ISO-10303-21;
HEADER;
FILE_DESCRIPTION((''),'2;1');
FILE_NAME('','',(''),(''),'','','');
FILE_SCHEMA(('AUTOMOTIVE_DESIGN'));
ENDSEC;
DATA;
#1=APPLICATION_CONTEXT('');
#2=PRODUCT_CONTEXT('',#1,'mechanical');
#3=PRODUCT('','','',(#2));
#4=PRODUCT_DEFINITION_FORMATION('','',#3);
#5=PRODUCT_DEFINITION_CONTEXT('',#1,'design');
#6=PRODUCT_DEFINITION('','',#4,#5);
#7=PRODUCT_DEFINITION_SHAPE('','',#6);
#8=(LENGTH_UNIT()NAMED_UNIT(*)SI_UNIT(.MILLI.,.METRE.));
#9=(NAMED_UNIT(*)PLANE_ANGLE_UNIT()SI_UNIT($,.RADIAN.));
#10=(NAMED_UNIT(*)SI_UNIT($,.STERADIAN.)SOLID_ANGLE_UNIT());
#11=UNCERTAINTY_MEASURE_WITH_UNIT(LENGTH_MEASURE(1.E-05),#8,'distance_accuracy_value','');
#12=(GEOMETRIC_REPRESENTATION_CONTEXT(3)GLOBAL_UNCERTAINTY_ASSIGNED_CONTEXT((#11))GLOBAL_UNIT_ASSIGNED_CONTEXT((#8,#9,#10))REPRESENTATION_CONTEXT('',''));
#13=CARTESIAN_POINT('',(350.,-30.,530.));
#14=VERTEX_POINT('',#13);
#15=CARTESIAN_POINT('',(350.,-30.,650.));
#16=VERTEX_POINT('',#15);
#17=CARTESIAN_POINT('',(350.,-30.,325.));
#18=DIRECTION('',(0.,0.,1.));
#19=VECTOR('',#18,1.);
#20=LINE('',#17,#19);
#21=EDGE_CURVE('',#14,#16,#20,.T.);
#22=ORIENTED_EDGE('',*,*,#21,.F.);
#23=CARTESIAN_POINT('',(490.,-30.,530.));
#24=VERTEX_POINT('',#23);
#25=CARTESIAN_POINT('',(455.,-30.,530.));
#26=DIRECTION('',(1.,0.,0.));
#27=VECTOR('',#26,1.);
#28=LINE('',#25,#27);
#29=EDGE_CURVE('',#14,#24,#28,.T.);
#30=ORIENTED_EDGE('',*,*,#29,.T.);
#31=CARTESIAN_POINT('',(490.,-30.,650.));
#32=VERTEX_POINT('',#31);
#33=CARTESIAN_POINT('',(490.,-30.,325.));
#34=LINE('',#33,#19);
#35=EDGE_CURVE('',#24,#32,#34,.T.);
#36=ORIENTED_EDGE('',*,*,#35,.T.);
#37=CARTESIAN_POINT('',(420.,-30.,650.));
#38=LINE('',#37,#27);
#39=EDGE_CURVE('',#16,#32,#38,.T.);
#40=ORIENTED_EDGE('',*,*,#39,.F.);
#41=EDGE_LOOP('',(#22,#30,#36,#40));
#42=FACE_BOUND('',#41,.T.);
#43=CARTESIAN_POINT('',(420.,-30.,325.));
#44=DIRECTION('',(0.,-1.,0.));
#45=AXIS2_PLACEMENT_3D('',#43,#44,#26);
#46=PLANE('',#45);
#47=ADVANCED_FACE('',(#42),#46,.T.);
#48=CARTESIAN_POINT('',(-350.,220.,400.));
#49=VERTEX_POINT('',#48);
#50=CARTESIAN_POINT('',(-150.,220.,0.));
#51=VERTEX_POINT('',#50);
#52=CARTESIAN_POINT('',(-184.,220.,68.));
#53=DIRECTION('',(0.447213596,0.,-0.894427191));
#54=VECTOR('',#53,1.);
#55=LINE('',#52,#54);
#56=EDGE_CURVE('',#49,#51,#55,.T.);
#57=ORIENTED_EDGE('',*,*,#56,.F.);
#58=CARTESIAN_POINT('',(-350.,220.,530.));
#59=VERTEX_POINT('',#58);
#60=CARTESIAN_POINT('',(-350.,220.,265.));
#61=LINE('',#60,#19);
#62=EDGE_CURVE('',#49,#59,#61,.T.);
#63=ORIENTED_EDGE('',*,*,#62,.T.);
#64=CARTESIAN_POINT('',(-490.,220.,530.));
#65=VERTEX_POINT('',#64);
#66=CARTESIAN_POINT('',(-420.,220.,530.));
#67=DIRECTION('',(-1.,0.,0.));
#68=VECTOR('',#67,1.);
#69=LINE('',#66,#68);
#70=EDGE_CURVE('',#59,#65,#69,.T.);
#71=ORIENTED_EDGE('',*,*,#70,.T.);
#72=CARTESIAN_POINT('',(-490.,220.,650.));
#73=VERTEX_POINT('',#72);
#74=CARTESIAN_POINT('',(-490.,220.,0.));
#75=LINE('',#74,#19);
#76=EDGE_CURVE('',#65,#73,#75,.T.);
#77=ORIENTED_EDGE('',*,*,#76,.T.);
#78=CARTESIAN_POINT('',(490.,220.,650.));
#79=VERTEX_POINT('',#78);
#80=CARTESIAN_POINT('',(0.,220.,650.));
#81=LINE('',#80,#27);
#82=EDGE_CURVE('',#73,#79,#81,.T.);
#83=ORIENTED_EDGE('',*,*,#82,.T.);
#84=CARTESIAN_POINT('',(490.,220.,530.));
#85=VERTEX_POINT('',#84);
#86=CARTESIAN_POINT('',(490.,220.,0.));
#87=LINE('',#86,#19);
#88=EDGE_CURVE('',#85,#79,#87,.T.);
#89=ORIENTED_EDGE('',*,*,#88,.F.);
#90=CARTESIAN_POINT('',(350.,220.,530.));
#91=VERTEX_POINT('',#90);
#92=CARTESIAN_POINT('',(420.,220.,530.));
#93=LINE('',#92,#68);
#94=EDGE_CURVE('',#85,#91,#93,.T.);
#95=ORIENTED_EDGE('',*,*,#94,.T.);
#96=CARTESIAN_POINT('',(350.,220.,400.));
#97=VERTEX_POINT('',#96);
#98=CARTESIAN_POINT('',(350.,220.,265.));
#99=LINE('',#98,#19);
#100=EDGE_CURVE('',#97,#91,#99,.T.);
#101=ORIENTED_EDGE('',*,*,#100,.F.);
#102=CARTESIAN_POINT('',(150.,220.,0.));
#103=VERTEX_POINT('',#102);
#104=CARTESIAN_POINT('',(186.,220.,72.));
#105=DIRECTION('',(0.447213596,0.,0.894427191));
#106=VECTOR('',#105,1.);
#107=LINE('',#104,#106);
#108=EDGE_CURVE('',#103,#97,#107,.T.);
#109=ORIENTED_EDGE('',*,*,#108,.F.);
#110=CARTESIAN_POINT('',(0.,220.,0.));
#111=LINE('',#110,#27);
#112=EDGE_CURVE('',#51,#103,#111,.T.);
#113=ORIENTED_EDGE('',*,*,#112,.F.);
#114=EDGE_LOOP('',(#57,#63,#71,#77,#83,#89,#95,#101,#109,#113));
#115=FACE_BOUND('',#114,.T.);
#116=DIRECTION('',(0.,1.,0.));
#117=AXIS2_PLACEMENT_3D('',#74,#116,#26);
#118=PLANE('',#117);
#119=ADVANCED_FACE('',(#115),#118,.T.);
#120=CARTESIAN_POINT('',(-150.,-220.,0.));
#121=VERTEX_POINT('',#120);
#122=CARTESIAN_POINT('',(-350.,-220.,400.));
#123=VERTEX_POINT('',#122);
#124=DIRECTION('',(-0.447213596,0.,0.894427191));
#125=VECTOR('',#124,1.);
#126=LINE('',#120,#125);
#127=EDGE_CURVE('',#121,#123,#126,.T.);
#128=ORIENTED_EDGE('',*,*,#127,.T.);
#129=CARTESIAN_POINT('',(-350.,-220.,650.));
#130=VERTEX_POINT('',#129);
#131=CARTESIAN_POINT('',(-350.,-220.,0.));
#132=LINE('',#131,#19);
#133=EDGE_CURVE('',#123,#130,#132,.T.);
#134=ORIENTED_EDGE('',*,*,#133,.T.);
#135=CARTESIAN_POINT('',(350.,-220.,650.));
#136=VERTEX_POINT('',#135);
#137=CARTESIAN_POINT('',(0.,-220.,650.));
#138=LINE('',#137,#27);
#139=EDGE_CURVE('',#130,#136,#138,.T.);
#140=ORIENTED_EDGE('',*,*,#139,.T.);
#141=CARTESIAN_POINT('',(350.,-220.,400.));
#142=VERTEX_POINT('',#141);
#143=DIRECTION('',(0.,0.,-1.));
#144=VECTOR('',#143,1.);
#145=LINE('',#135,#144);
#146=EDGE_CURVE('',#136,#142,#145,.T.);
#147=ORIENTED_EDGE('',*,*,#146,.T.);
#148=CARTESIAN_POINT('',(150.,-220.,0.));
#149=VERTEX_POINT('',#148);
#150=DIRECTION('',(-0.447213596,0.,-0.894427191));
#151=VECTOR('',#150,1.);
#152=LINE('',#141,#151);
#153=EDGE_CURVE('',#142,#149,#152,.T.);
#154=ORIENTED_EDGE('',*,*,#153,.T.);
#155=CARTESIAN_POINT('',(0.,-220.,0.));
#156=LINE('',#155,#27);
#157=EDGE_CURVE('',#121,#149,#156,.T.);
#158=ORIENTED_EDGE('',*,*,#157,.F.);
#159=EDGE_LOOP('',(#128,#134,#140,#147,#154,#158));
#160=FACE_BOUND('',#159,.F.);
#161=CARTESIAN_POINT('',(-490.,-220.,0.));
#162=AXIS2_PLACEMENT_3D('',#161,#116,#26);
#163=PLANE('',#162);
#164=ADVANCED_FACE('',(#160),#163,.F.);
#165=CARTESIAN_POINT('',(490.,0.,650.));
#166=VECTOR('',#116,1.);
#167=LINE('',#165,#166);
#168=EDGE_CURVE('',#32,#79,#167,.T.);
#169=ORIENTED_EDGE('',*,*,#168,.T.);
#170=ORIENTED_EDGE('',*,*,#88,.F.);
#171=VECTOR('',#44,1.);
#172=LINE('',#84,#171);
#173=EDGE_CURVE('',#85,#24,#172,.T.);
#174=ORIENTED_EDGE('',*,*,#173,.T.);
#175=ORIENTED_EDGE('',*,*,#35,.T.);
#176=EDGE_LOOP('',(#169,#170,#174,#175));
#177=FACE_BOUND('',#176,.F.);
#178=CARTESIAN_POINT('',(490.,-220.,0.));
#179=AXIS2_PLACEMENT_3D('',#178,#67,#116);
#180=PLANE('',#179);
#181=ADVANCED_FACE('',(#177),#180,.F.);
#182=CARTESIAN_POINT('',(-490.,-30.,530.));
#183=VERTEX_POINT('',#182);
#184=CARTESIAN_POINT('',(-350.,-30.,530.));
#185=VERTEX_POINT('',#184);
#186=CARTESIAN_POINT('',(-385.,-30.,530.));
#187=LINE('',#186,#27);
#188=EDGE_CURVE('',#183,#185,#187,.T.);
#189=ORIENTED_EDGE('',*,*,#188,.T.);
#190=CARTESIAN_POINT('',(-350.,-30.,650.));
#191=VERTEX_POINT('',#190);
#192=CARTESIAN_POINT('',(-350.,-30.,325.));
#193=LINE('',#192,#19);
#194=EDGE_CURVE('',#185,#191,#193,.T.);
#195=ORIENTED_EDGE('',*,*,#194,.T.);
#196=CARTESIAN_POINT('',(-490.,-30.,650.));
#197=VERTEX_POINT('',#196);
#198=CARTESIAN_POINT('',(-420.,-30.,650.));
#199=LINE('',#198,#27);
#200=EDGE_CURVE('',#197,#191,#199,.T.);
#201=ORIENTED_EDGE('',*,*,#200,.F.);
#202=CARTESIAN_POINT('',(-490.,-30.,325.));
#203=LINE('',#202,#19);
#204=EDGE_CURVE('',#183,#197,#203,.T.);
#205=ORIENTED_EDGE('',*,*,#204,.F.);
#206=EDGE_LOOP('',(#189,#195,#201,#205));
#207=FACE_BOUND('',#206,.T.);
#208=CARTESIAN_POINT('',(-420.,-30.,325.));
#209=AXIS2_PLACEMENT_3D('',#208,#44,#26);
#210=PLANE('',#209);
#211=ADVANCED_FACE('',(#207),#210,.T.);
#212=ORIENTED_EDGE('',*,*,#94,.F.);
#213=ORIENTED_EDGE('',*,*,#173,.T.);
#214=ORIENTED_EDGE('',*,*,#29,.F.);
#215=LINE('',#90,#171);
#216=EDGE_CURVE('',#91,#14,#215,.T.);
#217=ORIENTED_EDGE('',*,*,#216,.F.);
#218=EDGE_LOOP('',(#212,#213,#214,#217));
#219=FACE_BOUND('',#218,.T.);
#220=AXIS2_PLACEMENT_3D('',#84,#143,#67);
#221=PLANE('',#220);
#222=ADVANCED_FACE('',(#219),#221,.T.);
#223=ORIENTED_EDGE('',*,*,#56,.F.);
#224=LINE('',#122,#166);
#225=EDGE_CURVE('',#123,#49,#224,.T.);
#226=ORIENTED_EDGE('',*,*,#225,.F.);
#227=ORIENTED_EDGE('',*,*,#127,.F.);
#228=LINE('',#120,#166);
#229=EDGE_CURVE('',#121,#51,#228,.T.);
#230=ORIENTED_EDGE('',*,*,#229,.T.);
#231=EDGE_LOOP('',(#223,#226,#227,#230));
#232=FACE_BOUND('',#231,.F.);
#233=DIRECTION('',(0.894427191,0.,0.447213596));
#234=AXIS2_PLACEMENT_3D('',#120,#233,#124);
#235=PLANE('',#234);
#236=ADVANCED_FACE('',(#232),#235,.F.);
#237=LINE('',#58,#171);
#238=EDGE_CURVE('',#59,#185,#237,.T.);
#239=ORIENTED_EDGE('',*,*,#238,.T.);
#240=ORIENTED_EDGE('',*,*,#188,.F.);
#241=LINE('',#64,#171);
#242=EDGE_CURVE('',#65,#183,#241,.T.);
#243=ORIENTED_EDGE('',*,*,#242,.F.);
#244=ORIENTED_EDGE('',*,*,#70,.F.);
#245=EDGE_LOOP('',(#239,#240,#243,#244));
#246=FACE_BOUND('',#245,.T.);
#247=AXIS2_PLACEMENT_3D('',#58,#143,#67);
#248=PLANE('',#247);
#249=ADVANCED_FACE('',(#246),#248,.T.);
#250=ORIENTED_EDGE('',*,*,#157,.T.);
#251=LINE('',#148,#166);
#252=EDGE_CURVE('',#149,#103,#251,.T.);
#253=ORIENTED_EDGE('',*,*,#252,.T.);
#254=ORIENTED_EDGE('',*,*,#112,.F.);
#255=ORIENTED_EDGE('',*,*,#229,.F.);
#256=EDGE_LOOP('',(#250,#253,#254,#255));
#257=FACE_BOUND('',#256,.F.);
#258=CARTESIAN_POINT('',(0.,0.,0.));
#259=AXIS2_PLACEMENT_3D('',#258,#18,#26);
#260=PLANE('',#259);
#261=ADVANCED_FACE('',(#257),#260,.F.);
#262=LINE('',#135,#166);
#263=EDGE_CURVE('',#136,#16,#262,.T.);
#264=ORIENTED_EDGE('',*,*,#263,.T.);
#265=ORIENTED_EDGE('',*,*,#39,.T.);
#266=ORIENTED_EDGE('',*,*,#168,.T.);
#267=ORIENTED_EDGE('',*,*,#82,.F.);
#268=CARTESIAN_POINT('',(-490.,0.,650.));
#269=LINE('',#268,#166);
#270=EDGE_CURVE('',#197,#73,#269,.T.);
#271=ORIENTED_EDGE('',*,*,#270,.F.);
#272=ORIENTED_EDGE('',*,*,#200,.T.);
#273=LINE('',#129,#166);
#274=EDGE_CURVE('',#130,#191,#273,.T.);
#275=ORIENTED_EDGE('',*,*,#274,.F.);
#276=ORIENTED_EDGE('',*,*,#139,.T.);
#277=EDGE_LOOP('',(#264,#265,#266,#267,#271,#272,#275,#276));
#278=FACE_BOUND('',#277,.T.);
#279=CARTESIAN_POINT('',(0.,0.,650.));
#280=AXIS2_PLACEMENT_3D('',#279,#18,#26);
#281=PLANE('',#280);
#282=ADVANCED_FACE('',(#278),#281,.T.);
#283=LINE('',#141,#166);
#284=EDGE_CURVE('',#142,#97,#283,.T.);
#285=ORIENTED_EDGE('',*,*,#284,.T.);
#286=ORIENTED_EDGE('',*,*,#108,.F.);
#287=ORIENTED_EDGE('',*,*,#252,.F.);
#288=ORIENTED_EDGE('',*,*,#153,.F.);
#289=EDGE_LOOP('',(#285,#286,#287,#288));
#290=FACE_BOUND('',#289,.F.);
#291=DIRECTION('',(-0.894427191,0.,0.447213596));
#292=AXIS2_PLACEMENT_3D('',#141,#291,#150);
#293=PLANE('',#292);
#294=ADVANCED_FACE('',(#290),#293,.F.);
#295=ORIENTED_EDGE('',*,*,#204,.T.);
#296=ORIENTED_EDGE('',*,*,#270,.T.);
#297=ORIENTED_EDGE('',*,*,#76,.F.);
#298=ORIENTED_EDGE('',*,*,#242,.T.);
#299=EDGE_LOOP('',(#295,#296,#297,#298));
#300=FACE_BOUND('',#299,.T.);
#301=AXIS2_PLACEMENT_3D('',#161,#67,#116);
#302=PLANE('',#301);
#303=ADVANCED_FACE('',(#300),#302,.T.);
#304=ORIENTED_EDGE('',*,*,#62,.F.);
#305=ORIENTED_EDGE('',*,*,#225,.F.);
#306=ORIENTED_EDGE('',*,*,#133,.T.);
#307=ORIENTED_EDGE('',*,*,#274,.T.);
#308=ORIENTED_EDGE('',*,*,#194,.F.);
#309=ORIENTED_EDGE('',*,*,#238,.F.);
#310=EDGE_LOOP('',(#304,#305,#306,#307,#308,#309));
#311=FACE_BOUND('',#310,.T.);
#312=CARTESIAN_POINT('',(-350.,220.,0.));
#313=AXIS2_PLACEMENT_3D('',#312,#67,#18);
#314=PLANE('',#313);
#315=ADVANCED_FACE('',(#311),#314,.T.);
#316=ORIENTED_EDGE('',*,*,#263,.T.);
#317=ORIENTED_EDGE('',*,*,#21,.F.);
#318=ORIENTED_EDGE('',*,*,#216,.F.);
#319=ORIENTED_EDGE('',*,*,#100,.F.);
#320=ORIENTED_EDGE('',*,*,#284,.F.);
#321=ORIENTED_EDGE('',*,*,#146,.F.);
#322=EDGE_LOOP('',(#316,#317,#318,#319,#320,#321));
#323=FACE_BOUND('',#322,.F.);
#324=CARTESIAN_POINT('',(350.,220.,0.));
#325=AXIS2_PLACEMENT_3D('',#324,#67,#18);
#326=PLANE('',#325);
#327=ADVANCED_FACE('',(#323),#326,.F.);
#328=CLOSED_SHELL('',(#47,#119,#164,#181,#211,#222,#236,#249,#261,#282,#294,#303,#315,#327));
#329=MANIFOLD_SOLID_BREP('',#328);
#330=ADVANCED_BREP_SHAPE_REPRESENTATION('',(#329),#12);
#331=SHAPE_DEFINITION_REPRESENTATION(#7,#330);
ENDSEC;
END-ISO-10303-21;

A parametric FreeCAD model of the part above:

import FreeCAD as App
import Part
import Sketcher
from FreeCAD import Vector
Q = App.Units.Quantity


def add_polygon(sketch, points):
    """Adds a closed chain of lines whose ends are joined by coincident constraints."""
    first, n = sketch.GeometryCount, len(points)
    for a, b in zip(points, points[1:] + points[:1]):
        sketch.addGeometry(Part.LineSegment(App.Vector(*a, 0), App.Vector(*b, 0)), False)
    for i in range(n):
        sketch.addConstraint(Sketcher.Constraint("Coincident", first + i, 2, first + (i + 1) % n, 1))

doc = App.newDocument("Part")
body = doc.addObject("PartDesign::Body", "Body")

# Sketch on XY plane
sketch1 = body.newObject("Sketcher::SketchObject", "Sketch")
sketch1.AttachmentSupport = (doc.getObject("XY_Plane"), [""])
sketch1.MapMode = "FlatFace"
add_polygon(sketch1, [(-490, 220), (-490, -220), (490, -220), (490, 220)])  # lines 0-3
sketch1.addConstraint([
    Sketcher.Constraint("Vertical", 0),
    Sketcher.Constraint("Horizontal", 1),
    Sketcher.Constraint("Vertical", 2),
    Sketcher.Constraint("Horizontal", 3),
    Sketcher.Constraint("Symmetric", 0, 2, 2, 2, -1, 1),
    Sketcher.Constraint("DistanceX", 1, 1, 1, 2, Q("980 mm")),
    Sketcher.Constraint("DistanceY", 0, 2, 0, 1, Q("440 mm")),
])
pad1 = body.newObject("PartDesign::Pad", "Pad")
pad1.Profile = sketch1
pad1.Length = 650

# Sketch on XZ plane
sketch2 = body.newObject("Sketcher::SketchObject", "Sketch001")
sketch2.AttachmentSupport = (doc.getObject("XZ_Plane"), [""])
sketch2.MapMode = "FlatFace"
sketch2.AttachmentOffset = App.Placement(Vector(0, 0, 220), App.Rotation())
add_polygon(sketch2, [(-490, 650), (-490, 0), (-350, 0), (-350, 650)])  # lines 0-3
add_polygon(sketch2, [(350, 650), (350, 0), (490, 0), (490, 650)])  # lines 4-7
sketch2.addConstraint([
    Sketcher.Constraint("Vertical", 0),
    Sketcher.Constraint("Horizontal", 1),
    Sketcher.Constraint("Vertical", 2),
    Sketcher.Constraint("Horizontal", 3),
    Sketcher.Constraint("Vertical", 4),
    Sketcher.Constraint("Horizontal", 5),
    Sketcher.Constraint("Vertical", 6),
    Sketcher.Constraint("Horizontal", 7),
    Sketcher.Constraint("Symmetric", 1, 2, 4, 2, -1, 1),
    Sketcher.Constraint("Symmetric", 0, 2, 5, 2, -2),
    Sketcher.Constraint("Horizontal", 3, 2, 6, 2),
    Sketcher.Constraint("DistanceX", 1, 1, 1, 2, Q("140 mm")),
    Sketcher.Constraint("DistanceY", 0, 2, 0, 1, Q("650 mm")),
    Sketcher.Constraint("DistanceX", 0, 2, -1, 1, Q("490 mm")),
])
pocket1 = body.newObject("PartDesign::Pocket", "Pocket")
pocket1.Profile = sketch2
pocket1.Length = 190

# Sketch on XZ plane
sketch3 = body.newObject("Sketcher::SketchObject", "Sketch002")
sketch3.AttachmentSupport = (doc.getObject("XZ_Plane"), [""])
sketch3.MapMode = "FlatFace"
sketch3.AttachmentOffset = App.Placement(Vector(0, 0, -220), App.Rotation())
add_polygon(sketch3, [(490, 530), (490, 0), (350, 0), (350, 530)])  # lines 0-3
add_polygon(sketch3, [(-350, 530), (-350, 0), (-490, 0), (-490, 530)])  # lines 4-7
sketch3.addConstraint([
    Sketcher.Constraint("Vertical", 0),
    Sketcher.Constraint("Horizontal", 1),
    Sketcher.Constraint("Vertical", 2),
    Sketcher.Constraint("Horizontal", 3),
    Sketcher.Constraint("Vertical", 4),
    Sketcher.Constraint("Horizontal", 5),
    Sketcher.Constraint("Vertical", 6),
    Sketcher.Constraint("Horizontal", 7),
    Sketcher.Constraint("Symmetric", 1, 2, 4, 2, -1, 1),
    Sketcher.Constraint("Symmetric", 0, 2, 5, 2, -2),
    Sketcher.Constraint("Horizontal", 3, 2, 6, 2),
    Sketcher.Constraint("DistanceX", 1, 2, 1, 1, Q("140 mm")),
    Sketcher.Constraint("DistanceY", 0, 2, 0, 1, Q("530 mm")),
    Sketcher.Constraint("DistanceX", -1, 1, 0, 2, Q("490 mm")),
])
pocket2 = body.newObject("PartDesign::Pocket", "Pocket001")
pocket2.Profile = sketch3
pocket2.Type = "ThroughAll"
pocket2.Reversed = True

# Sketch on XZ plane
sketch4 = body.newObject("Sketcher::SketchObject", "Sketch003")
sketch4.AttachmentSupport = (doc.getObject("XZ_Plane"), [""])
sketch4.MapMode = "FlatFace"
sketch4.AttachmentOffset = App.Placement(Vector(0, 0, 220), App.Rotation())
add_polygon(sketch4, [(-350, 400), (-350, 0), (-150, 0)])  # lines 0-2
add_polygon(sketch4, [(350, 400), (150, 0), (350, 0)])  # lines 3-5
sketch4.addConstraint([
    Sketcher.Constraint("Vertical", 0),
    Sketcher.Constraint("Horizontal", 1),
    Sketcher.Constraint("Horizontal", 4),
    Sketcher.Constraint("Vertical", 5),
    Sketcher.Constraint("Symmetric", 1, 2, 3, 2, -1, 1),
    Sketcher.Constraint("Symmetric", 0, 2, 4, 2, -2),
    Sketcher.Constraint("Horizontal", 2, 2, 5, 2),
    Sketcher.Constraint("DistanceX", 1, 1, 1, 2, Q("200 mm")),
    Sketcher.Constraint("DistanceY", 0, 2, 0, 1, Q("400 mm")),
    Sketcher.Constraint("DistanceX", 0, 2, -1, 1, Q("350 mm")),
])
pocket3 = body.newObject("PartDesign::Pocket", "Pocket002")
pocket3.Profile = sketch4
pocket3.Type = "ThroughAll"

doc.recompute()
